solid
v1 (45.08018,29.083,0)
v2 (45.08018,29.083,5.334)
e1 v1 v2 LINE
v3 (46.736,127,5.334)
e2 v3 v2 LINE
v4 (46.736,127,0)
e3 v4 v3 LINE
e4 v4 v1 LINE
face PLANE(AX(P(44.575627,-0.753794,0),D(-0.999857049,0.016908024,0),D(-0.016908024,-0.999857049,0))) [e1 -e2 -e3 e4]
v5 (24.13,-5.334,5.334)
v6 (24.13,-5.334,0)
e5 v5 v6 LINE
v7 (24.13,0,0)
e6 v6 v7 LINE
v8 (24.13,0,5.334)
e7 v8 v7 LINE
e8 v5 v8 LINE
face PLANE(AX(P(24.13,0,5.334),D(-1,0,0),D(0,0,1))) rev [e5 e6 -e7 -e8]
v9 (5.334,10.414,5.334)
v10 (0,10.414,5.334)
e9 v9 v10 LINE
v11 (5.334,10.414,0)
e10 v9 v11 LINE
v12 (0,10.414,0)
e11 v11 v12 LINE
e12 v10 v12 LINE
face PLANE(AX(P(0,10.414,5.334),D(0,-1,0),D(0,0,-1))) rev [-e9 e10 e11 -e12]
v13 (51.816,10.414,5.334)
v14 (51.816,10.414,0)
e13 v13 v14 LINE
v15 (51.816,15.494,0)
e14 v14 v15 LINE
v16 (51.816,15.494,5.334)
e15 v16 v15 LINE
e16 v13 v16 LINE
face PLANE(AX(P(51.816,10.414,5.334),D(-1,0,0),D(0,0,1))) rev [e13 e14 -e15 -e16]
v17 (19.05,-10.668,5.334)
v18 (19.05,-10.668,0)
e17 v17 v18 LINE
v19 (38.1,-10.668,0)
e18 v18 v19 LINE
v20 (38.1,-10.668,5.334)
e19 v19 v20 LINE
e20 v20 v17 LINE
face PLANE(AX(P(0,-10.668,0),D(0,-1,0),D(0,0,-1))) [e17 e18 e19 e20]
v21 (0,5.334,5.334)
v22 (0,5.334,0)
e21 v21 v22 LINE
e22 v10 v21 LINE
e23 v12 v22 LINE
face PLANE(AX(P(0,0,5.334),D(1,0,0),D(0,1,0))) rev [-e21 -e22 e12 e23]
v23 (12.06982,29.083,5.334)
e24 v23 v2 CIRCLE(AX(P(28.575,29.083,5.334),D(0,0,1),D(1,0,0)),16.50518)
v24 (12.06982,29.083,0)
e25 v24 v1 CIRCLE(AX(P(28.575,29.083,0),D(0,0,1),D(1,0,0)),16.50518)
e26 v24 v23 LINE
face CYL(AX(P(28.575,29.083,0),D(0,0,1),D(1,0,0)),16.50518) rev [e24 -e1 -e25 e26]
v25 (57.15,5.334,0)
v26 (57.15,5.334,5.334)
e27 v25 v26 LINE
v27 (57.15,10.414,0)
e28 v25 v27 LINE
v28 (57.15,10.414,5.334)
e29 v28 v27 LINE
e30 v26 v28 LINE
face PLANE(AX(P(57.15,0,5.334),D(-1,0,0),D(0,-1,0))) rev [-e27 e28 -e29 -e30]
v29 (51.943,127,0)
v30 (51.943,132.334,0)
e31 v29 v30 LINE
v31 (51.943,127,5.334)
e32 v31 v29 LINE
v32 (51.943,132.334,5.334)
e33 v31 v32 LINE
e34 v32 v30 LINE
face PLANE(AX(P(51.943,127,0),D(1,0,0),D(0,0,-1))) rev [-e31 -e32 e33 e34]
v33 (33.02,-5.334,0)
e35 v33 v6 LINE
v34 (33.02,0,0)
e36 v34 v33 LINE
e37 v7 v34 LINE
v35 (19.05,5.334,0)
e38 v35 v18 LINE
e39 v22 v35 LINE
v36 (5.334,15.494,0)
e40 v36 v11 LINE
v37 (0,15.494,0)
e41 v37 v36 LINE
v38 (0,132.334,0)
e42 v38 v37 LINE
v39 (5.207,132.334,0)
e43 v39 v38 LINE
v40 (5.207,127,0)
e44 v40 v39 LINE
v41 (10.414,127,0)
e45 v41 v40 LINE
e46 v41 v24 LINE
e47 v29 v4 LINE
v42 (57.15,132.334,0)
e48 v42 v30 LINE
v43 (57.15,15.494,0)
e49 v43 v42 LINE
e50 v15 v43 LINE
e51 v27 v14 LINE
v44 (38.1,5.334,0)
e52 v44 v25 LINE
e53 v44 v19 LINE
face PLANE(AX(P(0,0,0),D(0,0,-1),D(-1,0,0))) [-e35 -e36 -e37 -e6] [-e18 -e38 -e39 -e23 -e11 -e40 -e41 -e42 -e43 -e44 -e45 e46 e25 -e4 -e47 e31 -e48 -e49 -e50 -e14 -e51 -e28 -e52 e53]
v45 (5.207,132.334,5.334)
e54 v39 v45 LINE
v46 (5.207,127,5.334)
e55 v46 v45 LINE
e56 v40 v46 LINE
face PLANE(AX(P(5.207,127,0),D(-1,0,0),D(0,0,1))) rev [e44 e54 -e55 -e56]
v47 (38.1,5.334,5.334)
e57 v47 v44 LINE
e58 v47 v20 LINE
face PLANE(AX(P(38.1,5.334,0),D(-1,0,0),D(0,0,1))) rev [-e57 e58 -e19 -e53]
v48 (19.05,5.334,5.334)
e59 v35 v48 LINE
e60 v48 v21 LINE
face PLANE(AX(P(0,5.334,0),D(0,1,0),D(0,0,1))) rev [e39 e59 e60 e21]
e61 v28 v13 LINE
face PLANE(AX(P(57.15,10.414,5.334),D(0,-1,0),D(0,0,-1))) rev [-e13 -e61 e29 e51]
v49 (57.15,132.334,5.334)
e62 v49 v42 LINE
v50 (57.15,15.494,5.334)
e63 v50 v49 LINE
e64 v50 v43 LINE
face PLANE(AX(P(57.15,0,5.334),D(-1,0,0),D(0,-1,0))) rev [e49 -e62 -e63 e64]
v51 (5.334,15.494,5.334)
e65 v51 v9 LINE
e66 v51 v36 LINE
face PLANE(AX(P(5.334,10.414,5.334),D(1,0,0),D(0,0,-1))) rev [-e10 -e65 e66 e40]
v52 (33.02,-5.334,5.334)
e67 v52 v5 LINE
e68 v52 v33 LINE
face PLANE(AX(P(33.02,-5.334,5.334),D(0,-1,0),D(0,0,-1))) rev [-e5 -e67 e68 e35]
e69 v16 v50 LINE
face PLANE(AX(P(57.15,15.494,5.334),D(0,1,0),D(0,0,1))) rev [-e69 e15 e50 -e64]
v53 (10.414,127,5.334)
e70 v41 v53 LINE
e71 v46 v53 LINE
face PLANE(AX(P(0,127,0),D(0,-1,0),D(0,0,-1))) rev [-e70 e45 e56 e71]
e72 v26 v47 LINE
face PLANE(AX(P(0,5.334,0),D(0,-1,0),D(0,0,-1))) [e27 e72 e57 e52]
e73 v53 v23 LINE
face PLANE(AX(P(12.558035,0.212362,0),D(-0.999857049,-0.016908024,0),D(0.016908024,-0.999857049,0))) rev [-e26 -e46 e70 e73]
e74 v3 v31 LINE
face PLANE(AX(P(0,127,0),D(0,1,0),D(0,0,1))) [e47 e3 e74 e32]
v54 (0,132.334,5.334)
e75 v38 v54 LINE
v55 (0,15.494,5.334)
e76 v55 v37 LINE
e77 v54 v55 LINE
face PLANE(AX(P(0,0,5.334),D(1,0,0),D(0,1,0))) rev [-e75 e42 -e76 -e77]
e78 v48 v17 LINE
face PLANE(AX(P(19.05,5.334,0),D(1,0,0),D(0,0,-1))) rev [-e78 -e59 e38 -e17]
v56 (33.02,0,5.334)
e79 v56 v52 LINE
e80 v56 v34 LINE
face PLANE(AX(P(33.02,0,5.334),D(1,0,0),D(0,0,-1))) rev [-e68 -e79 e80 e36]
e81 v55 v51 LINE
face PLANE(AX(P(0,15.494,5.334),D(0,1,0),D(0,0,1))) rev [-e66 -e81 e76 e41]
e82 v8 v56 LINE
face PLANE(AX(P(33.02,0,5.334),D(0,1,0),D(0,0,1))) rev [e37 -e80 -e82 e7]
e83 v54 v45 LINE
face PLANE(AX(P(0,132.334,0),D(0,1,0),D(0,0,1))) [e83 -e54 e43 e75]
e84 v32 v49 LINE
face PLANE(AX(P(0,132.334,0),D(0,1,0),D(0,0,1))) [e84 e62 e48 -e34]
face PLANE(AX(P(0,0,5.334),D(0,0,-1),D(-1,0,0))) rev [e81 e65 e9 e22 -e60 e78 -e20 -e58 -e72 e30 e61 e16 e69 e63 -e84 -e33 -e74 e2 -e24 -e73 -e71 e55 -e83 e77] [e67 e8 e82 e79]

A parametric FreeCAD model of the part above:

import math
import FreeCAD as App
import Part
import Sketcher
Q = App.Units.Quantity


def add_polygon(sketch, points):
    """Adds a closed chain of lines whose ends are joined by coincident constraints."""
    first, n = sketch.GeometryCount, len(points)
    for a, b in zip(points, points[1:] + points[:1]):
        sketch.addGeometry(Part.LineSegment(App.Vector(*a, 0), App.Vector(*b, 0)), False)
    for i in range(n):
        sketch.addConstraint(Sketcher.Constraint("Coincident", first + i, 2, first + (i + 1) % n, 1))

doc = App.newDocument("Part")
body = doc.addObject("PartDesign::Body", "Body")

sketch1 = body.newObject("Sketcher::SketchObject", "Sketch")
sketch1.AttachmentSupport = (doc.getObject("XY_Plane"), [""])
sketch1.MapMode = "FlatFace"
add_polygon(sketch1, [(0, 127), (0, 0), (57, 0), (57, 127)])
sketch1.addConstraint([
    Sketcher.Constraint("Vertical", 0),
    Sketcher.Constraint("Horizontal", 1),
    Sketcher.Constraint("Vertical", 2),
    Sketcher.Constraint("Horizontal", 3),
    Sketcher.Constraint("Coincident", 0, 2, -1, 1),
    Sketcher.Constraint("DistanceY", 0, 2, 0, 1, Q("5 in")),
    Sketcher.Constraint("DistanceX", 1, 1, 1, 2, Q("2.25 in")),
])
pad1 = body.newObject("PartDesign::Pad", "Pad")
pad1.Profile = sketch1
pad1.Length = Q("0.21 in")

sketch2 = body.newObject("Sketcher::SketchObject", "Sketch001")
sketch2.AttachmentSupport = (doc.getObject("XY_Plane"), [""])
sketch2.MapMode = "FlatFace"
sketch2.AttachmentOffset = App.Placement(App.Vector(0, 0, 0.21 * 25.4), App.Rotation())
sketch2.addGeometry([
    Part.LineSegment(App.Vector(47, 127, 0), App.Vector(10, 127, 0)),
    Part.LineSegment(App.Vector(10, 127, 0), App.Vector(12, 29, 0)),
    Part.ArcOfCircle(Part.Circle(App.Vector(29, 29, 0), App.Vector(0, 0, 1), 17), math.radians(180), math.radians(360)),
    Part.LineSegment(App.Vector(45, 29, 0), App.Vector(47, 127, 0)),
], False)
sketch2.addConstraint([
    Sketcher.Constraint("Coincident", 0, 2, 1, 1),
    Sketcher.Constraint("Coincident", 1, 2, 2, 1),
    Sketcher.Constraint("Coincident", 2, 2, 3, 1),
    Sketcher.Constraint("Coincident", 3, 2, 0, 1),
    Sketcher.Constraint("Horizontal", 0),
    Sketcher.Constraint("Horizontal", 2, 3, 1, 2),
    Sketcher.Constraint("Horizontal", 1, 2, 2, 2),
    Sketcher.Constraint("Equal", 1, 3),
    Sketcher.Constraint("DistanceY", -1, 1, 0, 2, Q("5 in")),
    Sketcher.Constraint("DistanceX", 0, 2, 0, 1, Q("1.43 in")),
    Sketcher.Constraint("DistanceX", -1, 1, 0, 2, Q("0.41 in")),
    Sketcher.Constraint("DistanceY", -1, 1, 2, 3, Q("1.145 in")),
    Sketcher.Constraint("Radius", 2, Q("16.50518 mm")),
])
pocket1 = body.newObject("PartDesign::Pocket", "Pocket")
pocket1.Profile = sketch2
pocket1.Type = "ThroughAll"

sketch3 = body.newObject("Sketcher::SketchObject", "Sketch002")
sketch3.AttachmentSupport = (doc.getObject("XZ_Plane"), [""])
sketch3.MapMode = "FlatFace"
add_polygon(sketch3, [(57, 0), (57, 5), (38, 5), (38, 0)])
add_polygon(sketch3, [(19, 0), (19, 5), (0, 5), (0, 0)])
sketch3.addConstraint([
    Sketcher.Constraint("Vertical", 0),
    Sketcher.Constraint("Horizontal", 1),
    Sketcher.Constraint("Vertical", 2),
    Sketcher.Constraint("Horizontal", 3),
    Sketcher.Constraint("Vertical", 4),
    Sketcher.Constraint("Horizontal", 5),
    Sketcher.Constraint("Vertical", 6),
    Sketcher.Constraint("Horizontal", 7),
    Sketcher.Constraint("Coincident", 6, 2, -1, 1),
    Sketcher.Constraint("PointOnObject", 2, 2, -1),
    Sketcher.Constraint("Horizontal", 1, 2, 4, 2),
    Sketcher.Constraint("Equal", 3, 5),
    Sketcher.Constraint("DistanceX", 1, 2, 1, 1, Q("0.75 in")),
    Sketcher.Constraint("DistanceY", 0, 1, 0, 2, Q("0.21 in")),
    Sketcher.Constraint("DistanceX", -1, 1, 1, 2, Q("1.5 in")),
])
pocket2 = body.newObject("PartDesign::Pocket", "Pocket001")
pocket2.Profile = sketch3
pocket2.Length = Q("0.21 in")

sketch4 = body.newObject("Sketcher::SketchObject", "Sketch003")
sketch4.AttachmentSupport = (doc.getObject("XZ_Plane"), [""])
sketch4.MapMode = "FlatFace"
sketch4.AttachmentOffset = App.Placement(App.Vector(0, 0, -5 * 25.4), App.Rotation())
add_polygon(sketch4, [(47, 0), (47, 5), (57, 5), (57, 0)])
add_polygon(sketch4, [(0, 0), (0, 5), (10, 5), (10, 0)])
sketch4.addConstraint([
    Sketcher.Constraint("Vertical", 0),
    Sketcher.Constraint("Horizontal", 1),
    Sketcher.Constraint("Vertical", 2),
    Sketcher.Constraint("Horizontal", 3),
    Sketcher.Constraint("Vertical", 4),
    Sketcher.Constraint("Horizontal", 5),
    Sketcher.Constraint("Vertical", 6),
    Sketcher.Constraint("Horizontal", 7),
    Sketcher.Constraint("Coincident", 7, 2, -1, 1),
    Sketcher.Constraint("PointOnObject", 2, 2, -1),
    Sketcher.Constraint("Horizontal", 1, 2, 4, 2),
    Sketcher.Constraint("Equal", 3, 5),
    Sketcher.Constraint("DistanceX", 1, 1, 1, 2, Q("0.41 in")),
    Sketcher.Constraint("DistanceY", 0, 1, 0, 2, Q("0.21 in")),
    Sketcher.Constraint("DistanceX", -1, 1, 0, 2, Q("1.84 in")),
])
pad2 = body.newObject("PartDesign::Pad", "Pad001")
pad2.Profile = sketch4
pad2.Length = Q("0.21 in")
pad2.Reversed = True

sketch5 = body.newObject("Sketcher::SketchObject", "Sketch004")
sketch5.AttachmentSupport = (doc.getObject("XZ_Plane"), [""])
sketch5.MapMode = "FlatFace"
sketch5.AttachmentOffset = App.Placement(App.Vector(0, 0, -5.21 * 25.4), App.Rotation())
add_polygon(sketch5, [(5, 0), (5, 5), (10, 5), (10, 0)])
add_polygon(sketch5, [(47, 0), (47, 5), (52, 5), (52, 0)])
sketch5.addConstraint([
    Sketcher.Constraint("Vertical", 0),
    Sketcher.Constraint("Horizontal", 1),
    Sketcher.Constraint("Vertical", 2),
    Sketcher.Constraint("Horizontal", 3),
    Sketcher.Constraint("Vertical", 4),
    Sketcher.Constraint("Horizontal", 5),
    Sketcher.Constraint("Vertical", 6),
    Sketcher.Constraint("Horizontal", 7),
    Sketcher.Constraint("PointOnObject", 2, 2, -1),
    Sketcher.Constraint("PointOnObject", 6, 2, -1),
    Sketcher.Constraint("Horizontal", 1, 2, 4, 2),
    Sketcher.Constraint("Equal", 3, 5),
    Sketcher.Constraint("DistanceY", 0, 1, 0, 2, Q("0.21 in")),
    Sketcher.Constraint("DistanceX", 1, 1, 1, 2, Q("0.205 in")),
    Sketcher.Constraint("DistanceX", -1, 1, 1, 2, Q("0.41 in")),
    Sketcher.Constraint("DistanceX", -1, 1, 4, 2, Q("1.84 in")),
])
pocket3 = body.newObject("PartDesign::Pocket", "Pocket002")
pocket3.Profile = sketch5
pocket3.Length = Q("0.21 in")
pocket3.Reversed = True

sketch6 = body.newObject("Sketcher::SketchObject", "Sketch005")
sketch6.AttachmentSupport = (doc.getObject("XZ_Plane"), [""])
sketch6.MapMode = "FlatFace"
add_polygon(sketch6, [(19, 5), (19, 0), (38, 0), (38, 5)])
sketch6.addConstraint([
    Sketcher.Constraint("Vertical", 0),
    Sketcher.Constraint("Horizontal", 1),
    Sketcher.Constraint("Vertical", 2),
    Sketcher.Constraint("Horizontal", 3),
    Sketcher.Constraint("PointOnObject", 0, 2, -1),
    Sketcher.Constraint("DistanceX", 1, 1, 1, 2, Q("0.75 in")),
    Sketcher.Constraint("DistanceY", 0, 2, 0, 1, Q("0.21 in")),
    Sketcher.Constraint("DistanceX", -1, 1, 1, 2, Q("1.5 in")),
])
pad3 = body.newObject("PartDesign::Pad", "Pad002")
pad3.Profile = sketch6
pad3.Length = Q("0.42 in")

sketch7 = body.newObject("Sketcher::SketchObject", "Sketch006")
sketch7.AttachmentSupport = (doc.getObject("XY_Plane"), [""])
sketch7.MapMode = "FlatFace"
add_polygon(sketch7, [(33, 0), (33, -5), (24, -5), (24, 0)])
sketch7.addConstraint([
    Sketcher.Constraint("Vertical", 0),
    Sketcher.Constraint("Horizontal", 1),
    Sketcher.Constraint("Vertical", 2),
    Sketcher.Constraint("Horizontal", 3),
    Sketcher.Constraint("PointOnObject", 2, 2, -1),
    Sketcher.Constraint("DistanceX", 1, 2, 1, 1, Q("0.35 in")),
    Sketcher.Constraint("DistanceY", 0, 2, 0, 1, Q("0.21 in")),
    Sketcher.Constraint("DistanceX", -1, 1, 0, 2, Q("1.3 in")),
])
pocket4 = body.newObject("PartDesign::Pocket", "Pocket003")
pocket4.Profile = sketch7
pocket4.Type = "ThroughAll"
pocket4.Reversed = True

sketch8 = body.newObject("Sketcher::SketchObject", "Sketch007")
sketch8.AttachmentSupport = (doc.getObject("XY_Plane"), [""])
sketch8.MapMode = "FlatFace"
add_polygon(sketch8, [(57, 15), (57, 10), (52, 10), (52, 15)])
add_polygon(sketch8, [(5, 15), (5, 10), (0, 10), (0, 15)])
sketch8.addConstraint([
    Sketcher.Constraint("Vertical", 0),
    Sketcher.Constraint("Horizontal", 1),
    Sketcher.Constraint("Vertical", 2),
    Sketcher.Constraint("Horizontal", 3),
    Sketcher.Constraint("Vertical", 4),
    Sketcher.Constraint("Horizontal", 5),
    Sketcher.Constraint("Vertical", 6),
    Sketcher.Constraint("Horizontal", 7),
    Sketcher.Constraint("PointOnObject", 5, 2, -2),
    Sketcher.Constraint("Horizontal", 1, 2, 4, 2),
    Sketcher.Constraint("Horizontal", 3, 2, 6, 2),
    Sketcher.Constraint("Equal", 3, 5),
    Sketcher.Constraint("DistanceY", 0, 2, 0, 1, Q("0.2 in")),
    Sketcher.Constraint("DistanceX", 1, 2, 1, 1, Q("0.21 in")),
    Sketcher.Constraint("DistanceX", -1, 1, 0, 2, Q("2.25 in")),
    Sketcher.Constraint("DistanceY", -1, 1, 0, 2, Q("0.41 in")),
])
pocket5 = body.newObject("PartDesign::Pocket", "Pocket004")
pocket5.Profile = sketch8
pocket5.Type = "ThroughAll"
pocket5.Reversed = True

doc.recompute()
